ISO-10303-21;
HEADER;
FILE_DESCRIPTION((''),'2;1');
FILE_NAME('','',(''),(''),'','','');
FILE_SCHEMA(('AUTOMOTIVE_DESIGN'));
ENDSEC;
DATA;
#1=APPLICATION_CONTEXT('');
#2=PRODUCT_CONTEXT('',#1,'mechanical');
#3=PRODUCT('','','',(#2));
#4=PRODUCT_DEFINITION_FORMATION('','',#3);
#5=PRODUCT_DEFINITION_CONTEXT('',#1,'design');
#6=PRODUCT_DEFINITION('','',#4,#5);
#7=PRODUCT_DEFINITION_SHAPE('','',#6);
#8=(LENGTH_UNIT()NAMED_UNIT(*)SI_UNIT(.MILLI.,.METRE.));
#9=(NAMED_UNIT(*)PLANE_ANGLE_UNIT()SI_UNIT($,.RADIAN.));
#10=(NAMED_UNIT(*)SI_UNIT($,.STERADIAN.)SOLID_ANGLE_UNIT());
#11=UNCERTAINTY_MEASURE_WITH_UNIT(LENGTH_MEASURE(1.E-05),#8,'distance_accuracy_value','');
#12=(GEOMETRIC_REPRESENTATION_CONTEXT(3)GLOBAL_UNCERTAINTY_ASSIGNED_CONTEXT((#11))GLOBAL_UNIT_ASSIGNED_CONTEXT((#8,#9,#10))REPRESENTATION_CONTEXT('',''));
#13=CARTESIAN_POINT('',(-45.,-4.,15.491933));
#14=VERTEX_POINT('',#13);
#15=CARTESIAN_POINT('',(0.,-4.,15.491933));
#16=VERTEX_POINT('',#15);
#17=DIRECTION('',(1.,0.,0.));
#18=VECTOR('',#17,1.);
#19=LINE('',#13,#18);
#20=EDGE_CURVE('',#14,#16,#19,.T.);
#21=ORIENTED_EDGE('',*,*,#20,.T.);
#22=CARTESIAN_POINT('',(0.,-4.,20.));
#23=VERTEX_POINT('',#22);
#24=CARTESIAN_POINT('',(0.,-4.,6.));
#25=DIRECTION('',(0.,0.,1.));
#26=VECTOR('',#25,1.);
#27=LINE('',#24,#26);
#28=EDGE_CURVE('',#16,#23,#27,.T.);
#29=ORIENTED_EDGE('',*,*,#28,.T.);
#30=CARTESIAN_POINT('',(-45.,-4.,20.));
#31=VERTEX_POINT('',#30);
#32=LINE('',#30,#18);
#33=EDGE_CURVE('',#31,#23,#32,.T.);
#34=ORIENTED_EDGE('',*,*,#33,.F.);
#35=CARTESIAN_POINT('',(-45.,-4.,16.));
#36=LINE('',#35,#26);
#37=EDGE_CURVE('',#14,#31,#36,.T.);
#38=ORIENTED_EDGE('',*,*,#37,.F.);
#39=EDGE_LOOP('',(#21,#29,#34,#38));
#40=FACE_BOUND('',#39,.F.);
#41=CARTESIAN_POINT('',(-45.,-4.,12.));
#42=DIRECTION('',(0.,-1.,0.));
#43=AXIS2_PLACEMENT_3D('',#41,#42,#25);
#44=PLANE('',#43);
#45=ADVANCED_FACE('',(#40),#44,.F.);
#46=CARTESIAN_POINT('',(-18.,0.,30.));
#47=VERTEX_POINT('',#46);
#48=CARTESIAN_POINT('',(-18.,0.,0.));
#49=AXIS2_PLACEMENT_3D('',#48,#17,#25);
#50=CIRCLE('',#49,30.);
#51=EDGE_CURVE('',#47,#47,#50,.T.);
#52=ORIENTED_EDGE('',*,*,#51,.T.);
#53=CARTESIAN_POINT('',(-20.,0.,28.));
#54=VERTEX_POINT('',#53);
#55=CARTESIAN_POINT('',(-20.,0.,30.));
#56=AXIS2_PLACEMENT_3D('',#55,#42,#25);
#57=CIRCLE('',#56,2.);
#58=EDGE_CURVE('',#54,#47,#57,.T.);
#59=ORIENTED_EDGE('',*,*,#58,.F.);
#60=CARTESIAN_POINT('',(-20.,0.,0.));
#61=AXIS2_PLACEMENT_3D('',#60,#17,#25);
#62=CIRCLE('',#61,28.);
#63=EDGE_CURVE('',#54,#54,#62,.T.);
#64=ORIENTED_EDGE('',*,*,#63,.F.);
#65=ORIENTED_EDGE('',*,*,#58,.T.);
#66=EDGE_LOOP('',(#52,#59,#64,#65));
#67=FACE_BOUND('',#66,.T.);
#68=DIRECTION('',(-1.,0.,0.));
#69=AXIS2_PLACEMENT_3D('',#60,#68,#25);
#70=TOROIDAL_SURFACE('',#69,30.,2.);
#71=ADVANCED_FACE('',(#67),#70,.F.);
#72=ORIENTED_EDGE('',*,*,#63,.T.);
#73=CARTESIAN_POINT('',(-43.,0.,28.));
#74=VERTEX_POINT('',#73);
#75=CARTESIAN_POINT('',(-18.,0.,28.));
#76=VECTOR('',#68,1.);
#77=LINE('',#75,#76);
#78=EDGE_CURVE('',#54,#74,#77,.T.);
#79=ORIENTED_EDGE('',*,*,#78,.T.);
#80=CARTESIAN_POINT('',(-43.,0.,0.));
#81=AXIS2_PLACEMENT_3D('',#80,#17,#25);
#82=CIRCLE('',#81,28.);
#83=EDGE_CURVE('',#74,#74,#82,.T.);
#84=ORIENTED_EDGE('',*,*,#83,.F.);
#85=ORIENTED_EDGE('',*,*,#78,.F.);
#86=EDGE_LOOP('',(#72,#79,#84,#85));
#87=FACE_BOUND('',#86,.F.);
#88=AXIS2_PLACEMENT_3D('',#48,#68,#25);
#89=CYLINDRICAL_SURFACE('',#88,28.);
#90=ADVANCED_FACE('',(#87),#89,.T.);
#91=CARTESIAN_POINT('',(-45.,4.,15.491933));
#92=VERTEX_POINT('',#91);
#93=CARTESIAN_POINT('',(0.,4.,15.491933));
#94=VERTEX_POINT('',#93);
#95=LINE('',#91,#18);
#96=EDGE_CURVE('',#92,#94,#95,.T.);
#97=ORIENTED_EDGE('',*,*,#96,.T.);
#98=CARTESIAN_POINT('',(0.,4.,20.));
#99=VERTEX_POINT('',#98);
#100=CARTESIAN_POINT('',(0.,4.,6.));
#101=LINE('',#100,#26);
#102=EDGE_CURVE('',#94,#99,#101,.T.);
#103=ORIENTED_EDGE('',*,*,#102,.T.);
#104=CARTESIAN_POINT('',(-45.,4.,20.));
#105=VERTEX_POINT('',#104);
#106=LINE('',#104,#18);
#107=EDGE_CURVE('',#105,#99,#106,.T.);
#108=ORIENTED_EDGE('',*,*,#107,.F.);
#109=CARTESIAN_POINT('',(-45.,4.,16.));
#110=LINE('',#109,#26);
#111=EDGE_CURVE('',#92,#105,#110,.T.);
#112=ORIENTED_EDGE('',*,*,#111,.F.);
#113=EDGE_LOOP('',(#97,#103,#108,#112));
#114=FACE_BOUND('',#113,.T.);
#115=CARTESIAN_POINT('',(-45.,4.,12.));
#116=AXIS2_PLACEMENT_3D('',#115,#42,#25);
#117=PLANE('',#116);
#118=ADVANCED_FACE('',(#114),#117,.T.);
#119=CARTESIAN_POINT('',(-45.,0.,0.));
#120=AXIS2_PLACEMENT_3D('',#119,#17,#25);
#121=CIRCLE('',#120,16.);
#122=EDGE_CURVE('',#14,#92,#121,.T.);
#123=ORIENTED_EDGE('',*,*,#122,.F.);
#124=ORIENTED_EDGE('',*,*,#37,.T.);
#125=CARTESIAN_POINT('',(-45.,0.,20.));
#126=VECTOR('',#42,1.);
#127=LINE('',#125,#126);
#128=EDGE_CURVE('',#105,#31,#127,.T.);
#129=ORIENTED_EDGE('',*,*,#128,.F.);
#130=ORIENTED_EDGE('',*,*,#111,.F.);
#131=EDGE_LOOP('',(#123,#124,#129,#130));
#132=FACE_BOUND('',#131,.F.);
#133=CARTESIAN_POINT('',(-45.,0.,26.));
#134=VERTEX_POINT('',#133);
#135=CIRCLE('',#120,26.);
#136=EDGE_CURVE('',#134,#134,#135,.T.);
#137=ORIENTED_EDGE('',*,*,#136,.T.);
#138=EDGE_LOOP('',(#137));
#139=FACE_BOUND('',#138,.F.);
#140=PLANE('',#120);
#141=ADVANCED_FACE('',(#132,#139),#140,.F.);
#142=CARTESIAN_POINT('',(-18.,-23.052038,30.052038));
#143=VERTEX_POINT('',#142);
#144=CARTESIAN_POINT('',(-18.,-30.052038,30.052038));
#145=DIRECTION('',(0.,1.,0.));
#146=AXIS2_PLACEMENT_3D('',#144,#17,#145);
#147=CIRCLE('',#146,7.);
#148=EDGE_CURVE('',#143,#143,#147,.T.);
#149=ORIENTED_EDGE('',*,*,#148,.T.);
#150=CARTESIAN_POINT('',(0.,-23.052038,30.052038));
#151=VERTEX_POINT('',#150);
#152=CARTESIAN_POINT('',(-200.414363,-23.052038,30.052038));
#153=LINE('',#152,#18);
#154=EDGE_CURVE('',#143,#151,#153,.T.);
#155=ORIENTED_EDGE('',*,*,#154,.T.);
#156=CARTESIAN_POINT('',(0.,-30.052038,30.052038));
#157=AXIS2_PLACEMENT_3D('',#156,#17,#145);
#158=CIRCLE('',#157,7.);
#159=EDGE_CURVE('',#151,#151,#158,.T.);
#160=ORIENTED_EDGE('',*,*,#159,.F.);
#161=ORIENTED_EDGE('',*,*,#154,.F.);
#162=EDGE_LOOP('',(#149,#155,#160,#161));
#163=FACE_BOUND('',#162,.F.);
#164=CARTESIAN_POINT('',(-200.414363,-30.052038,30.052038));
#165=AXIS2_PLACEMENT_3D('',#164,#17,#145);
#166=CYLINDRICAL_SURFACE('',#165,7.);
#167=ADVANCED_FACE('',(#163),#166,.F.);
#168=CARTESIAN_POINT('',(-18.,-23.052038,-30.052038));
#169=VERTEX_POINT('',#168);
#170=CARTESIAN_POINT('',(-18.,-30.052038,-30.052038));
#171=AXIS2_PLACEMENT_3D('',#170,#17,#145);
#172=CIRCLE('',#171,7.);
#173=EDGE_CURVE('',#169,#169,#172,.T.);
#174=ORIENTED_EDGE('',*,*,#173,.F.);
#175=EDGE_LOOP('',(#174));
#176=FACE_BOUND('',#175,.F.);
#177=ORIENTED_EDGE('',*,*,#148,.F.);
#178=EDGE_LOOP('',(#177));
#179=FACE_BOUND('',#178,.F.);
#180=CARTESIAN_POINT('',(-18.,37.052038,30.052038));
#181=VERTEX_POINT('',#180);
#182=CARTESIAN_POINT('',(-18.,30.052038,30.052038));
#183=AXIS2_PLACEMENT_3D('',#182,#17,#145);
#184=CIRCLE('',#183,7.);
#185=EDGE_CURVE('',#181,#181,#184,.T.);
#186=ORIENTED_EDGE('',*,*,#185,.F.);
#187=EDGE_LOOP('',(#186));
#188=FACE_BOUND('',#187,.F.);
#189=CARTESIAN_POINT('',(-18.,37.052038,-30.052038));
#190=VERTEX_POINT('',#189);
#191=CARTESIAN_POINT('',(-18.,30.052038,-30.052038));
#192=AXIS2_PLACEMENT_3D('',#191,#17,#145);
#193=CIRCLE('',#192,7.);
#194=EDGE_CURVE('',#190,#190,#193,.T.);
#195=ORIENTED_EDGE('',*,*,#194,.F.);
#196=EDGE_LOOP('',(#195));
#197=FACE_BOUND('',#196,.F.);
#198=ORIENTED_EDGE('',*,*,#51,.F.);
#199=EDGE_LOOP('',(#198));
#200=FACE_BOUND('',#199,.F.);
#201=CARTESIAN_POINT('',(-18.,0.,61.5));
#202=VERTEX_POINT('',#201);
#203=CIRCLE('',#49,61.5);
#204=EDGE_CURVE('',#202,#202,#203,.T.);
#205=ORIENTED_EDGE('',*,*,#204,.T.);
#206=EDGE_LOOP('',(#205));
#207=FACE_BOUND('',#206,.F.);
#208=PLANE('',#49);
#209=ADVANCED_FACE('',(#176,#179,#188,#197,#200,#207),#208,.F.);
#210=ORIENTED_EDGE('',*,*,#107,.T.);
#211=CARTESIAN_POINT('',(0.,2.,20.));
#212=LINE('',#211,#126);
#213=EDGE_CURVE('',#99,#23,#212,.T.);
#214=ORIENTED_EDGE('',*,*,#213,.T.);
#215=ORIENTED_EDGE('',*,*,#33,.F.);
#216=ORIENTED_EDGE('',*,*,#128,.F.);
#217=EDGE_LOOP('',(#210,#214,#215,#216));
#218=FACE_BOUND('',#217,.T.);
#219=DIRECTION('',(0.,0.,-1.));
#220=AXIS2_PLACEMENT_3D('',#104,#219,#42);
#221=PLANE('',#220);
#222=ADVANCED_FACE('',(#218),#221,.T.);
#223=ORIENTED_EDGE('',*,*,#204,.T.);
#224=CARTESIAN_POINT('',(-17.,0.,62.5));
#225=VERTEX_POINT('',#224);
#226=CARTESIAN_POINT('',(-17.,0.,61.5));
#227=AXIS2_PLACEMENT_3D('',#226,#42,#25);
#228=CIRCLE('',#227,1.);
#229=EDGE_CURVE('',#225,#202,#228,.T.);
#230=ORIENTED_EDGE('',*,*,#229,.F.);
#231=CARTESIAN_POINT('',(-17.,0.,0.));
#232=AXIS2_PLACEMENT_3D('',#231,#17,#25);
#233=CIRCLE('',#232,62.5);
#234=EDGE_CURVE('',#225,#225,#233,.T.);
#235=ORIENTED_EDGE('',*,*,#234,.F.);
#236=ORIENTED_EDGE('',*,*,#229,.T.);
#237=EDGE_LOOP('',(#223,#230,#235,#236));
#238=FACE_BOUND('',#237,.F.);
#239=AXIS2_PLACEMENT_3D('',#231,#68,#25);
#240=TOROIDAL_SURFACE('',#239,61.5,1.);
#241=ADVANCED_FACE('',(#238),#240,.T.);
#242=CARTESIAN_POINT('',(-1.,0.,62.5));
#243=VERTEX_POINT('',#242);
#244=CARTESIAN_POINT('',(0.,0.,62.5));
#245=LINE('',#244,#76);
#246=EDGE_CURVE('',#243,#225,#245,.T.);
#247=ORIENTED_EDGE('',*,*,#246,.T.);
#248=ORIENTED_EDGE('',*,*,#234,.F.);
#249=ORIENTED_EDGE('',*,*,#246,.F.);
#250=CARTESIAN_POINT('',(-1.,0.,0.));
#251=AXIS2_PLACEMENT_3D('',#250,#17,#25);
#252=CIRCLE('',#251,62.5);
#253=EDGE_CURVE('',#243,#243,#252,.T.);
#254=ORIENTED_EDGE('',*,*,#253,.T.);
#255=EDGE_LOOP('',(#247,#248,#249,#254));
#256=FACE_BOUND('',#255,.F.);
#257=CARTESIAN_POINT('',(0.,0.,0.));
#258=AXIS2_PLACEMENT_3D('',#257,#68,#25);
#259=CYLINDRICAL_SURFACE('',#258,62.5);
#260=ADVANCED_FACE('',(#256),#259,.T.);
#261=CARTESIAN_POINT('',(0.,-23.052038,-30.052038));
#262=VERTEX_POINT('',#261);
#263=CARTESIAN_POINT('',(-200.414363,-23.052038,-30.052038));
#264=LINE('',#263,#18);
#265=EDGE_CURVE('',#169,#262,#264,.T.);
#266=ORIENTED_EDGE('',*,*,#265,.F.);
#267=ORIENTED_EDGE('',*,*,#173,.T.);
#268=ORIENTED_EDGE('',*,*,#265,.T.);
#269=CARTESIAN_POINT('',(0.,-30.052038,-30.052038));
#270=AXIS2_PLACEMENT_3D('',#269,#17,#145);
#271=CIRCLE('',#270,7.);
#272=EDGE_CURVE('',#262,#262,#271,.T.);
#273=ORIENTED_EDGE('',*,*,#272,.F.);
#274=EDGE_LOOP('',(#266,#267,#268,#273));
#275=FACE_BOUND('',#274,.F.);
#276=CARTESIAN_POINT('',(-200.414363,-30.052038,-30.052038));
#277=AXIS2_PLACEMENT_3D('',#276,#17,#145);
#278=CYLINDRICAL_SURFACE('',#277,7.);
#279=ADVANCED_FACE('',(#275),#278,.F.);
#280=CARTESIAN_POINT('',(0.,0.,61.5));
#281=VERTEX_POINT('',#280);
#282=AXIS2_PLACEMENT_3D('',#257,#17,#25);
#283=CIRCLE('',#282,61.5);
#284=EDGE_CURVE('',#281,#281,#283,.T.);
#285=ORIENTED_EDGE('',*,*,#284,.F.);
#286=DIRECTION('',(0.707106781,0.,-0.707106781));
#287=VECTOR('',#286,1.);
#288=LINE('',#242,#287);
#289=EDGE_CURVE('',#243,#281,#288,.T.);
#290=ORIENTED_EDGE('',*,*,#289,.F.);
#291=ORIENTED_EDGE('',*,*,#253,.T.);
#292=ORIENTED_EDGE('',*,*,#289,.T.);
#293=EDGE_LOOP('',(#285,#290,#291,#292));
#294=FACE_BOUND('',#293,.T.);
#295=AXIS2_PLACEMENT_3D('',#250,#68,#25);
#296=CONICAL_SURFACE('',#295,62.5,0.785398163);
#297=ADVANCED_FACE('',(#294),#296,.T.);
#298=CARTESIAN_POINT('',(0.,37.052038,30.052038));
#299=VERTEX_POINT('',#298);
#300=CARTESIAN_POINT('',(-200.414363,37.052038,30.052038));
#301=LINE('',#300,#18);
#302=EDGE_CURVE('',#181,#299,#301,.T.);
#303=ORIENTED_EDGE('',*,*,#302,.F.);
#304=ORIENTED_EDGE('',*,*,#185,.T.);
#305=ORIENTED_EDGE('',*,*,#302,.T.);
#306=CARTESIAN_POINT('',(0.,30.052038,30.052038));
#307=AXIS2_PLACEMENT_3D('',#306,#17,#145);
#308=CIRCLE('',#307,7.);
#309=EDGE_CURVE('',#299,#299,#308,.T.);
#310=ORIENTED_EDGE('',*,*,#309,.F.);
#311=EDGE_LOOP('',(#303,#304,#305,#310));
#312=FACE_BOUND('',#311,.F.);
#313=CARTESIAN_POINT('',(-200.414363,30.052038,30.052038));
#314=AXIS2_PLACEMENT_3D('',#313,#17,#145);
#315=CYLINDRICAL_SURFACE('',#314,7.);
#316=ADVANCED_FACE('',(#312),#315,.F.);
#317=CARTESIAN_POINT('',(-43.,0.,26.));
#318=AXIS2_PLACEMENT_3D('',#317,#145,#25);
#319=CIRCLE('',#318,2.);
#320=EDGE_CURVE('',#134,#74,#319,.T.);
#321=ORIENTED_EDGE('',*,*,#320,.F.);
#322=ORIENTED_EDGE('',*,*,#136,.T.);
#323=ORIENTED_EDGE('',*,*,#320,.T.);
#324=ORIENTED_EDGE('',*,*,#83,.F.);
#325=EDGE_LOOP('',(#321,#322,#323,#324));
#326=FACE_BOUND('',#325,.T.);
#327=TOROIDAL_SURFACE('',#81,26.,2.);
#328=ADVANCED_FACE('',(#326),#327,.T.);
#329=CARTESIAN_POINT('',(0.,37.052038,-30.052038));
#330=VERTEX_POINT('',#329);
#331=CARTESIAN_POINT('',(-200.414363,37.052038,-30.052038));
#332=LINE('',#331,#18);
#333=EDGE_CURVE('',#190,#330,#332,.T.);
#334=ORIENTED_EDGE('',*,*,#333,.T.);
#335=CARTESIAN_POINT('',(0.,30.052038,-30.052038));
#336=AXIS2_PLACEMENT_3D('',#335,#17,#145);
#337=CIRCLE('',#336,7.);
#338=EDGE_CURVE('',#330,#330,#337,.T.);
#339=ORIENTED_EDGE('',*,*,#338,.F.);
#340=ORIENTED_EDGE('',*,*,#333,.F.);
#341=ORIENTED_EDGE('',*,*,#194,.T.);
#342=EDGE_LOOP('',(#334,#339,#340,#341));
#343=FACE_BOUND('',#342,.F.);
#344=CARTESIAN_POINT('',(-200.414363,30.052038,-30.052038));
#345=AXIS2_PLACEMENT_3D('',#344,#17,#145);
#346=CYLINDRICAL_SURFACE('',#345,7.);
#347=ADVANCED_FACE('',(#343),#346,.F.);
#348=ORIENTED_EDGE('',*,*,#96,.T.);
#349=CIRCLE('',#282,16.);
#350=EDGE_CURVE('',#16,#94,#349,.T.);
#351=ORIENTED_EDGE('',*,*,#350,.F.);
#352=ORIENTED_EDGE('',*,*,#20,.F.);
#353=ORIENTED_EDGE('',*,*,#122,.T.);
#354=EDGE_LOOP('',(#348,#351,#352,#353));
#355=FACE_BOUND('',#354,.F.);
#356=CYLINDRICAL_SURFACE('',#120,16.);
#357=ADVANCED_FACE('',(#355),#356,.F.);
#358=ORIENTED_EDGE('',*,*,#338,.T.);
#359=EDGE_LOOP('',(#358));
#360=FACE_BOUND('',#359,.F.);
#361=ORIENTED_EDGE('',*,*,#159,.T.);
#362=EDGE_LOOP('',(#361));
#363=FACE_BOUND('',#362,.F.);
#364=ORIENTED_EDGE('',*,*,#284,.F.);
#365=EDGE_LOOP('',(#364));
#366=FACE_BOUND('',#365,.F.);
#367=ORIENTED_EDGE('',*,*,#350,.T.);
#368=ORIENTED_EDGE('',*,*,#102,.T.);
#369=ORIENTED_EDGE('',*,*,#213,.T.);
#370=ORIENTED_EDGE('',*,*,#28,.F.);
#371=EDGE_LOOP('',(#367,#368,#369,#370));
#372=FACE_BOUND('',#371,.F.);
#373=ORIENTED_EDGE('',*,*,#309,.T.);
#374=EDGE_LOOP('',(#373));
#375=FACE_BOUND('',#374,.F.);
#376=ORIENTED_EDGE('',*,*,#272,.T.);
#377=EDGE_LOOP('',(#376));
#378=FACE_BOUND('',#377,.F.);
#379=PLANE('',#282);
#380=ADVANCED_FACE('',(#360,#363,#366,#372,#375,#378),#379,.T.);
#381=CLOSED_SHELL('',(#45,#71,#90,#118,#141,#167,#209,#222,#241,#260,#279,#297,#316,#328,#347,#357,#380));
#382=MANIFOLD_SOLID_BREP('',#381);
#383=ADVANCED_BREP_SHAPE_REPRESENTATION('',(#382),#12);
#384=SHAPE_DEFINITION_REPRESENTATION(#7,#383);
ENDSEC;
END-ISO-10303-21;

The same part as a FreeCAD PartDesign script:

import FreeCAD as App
import Part
import Sketcher


def edges_at(feature, points):
    """Names of the edges that pass closest to the given points."""
    edges = feature.Shape.Edges
    near = lambda p: min(range(len(edges)), key=lambda i: edges[i].distToShape(Part.Vertex(*p))[0])
    return sorted({f"Edge{near(p) + 1}" for p in points})


def add_polygon(sketch, points):
    """Adds a closed chain of lines whose ends are joined by coincident constraints."""
    first, n = sketch.GeometryCount, len(points)
    for a, b in zip(points, points[1:] + points[:1]):
        sketch.addGeometry(Part.LineSegment(App.Vector(*a, 0), App.Vector(*b, 0)), False)
    for i in range(n):
        sketch.addConstraint(Sketcher.Constraint("Coincident", first + i, 2, first + (i + 1) % n, 1))

doc = App.newDocument("Part")
body = doc.addObject("PartDesign::Body", "Body")

# Sketch on XZ plane
sketch1 = body.newObject("Sketcher::SketchObject", "Sketch")
sketch1.AttachmentSupport = (doc.getObject("XZ_Plane"), [""])
sketch1.MapMode = "FlatFace"
add_polygon(sketch1, [(-45, 16), (0, 16), (0, 62.5), (-18, 62.5), (-18, 28), (-45, 28)])  # lines 0-5
sketch1.addConstraint([
    Sketcher.Constraint("Horizontal", 0),
    Sketcher.Constraint("Vertical", 1),
    Sketcher.Constraint("Horizontal", 2),
    Sketcher.Constraint("Vertical", 3),
    Sketcher.Constraint("Horizontal", 4),
    Sketcher.Constraint("Vertical", 5),
    Sketcher.Constraint("PointOnObject", 0, 2, -2),
    Sketcher.Constraint("DistanceX", 0, 1, 0, 2, 45.0),
    Sketcher.Constraint("DistanceX", 2, 2, 2, 1, 18.0),
    Sketcher.Constraint("DistanceY", 5, 2, 5, 1, 12.0),
    Sketcher.Constraint("DistanceY", 1, 1, 1, 2, 46.5),
    Sketcher.Constraint("DistanceY", -1, 1, 0, 2, 16.0),
])
revolution = body.newObject("PartDesign::Revolution", "Revolution")
revolution.Profile = sketch1
revolution.ReferenceAxis = (sketch1, ["H_Axis"])
revolution.Angle = 360

# Sketch on YZ plane
sketch2 = body.newObject("Sketcher::SketchObject", "Sketch001")
sketch2.AttachmentSupport = (doc.getObject("YZ_Plane"), [""])
sketch2.MapMode = "FlatFace"
sketch2.AttachmentOffset = App.Placement(App.Vector(0, 0, -45), App.Rotation())
add_polygon(sketch2, [(4, 20), (4, 12), (-4, 12), (-4, 20)])  # lines 0-3
sketch2.addConstraint([
    Sketcher.Constraint("Vertical", 0),
    Sketcher.Constraint("Horizontal", 1),
    Sketcher.Constraint("Vertical", 2),
    Sketcher.Constraint("Horizontal", 3),
    Sketcher.Constraint("Equal", 3, 0),
    Sketcher.Constraint("DistanceX", 1, 2, 1, 1, 8.0),
    Sketcher.Constraint("DistanceX", -1, 1, 0, 2, 4.0),
    Sketcher.Constraint("DistanceY", -1, 1, 0, 2, 12.0),
])
pocket1 = body.newObject("PartDesign::Pocket", "Pocket")
pocket1.Profile = sketch2
pocket1.Type = "ThroughAll"
pocket1.Reversed = True

# Sketch on YZ plane
sketch3 = body.newObject("Sketcher::SketchObject", "Sketch002")
sketch3.AttachmentSupport = (doc.getObject("YZ_Plane"), [""])
sketch3.MapMode = "FlatFace"
sketch3.AttachmentOffset = App.Placement(App.Vector(0, 0, -18), App.Rotation())
sketch3.addGeometry([
    Part.Circle(App.Vector(30.052038, 30.052038, 0), App.Vector(0, 0, 1), 7),
    Part.Circle(App.Vector(30.052038, -30.052038, 0), App.Vector(0, 0, 1), 7),
    Part.Circle(App.Vector(-30.052038, -30.052038, 0), App.Vector(0, 0, 1), 7),
    Part.Circle(App.Vector(-30.052038, 30.052038, 0), App.Vector(0, 0, 1), 7),
], False)
sketch3.addConstraint([
    Sketcher.Constraint("Equal", 0, 1),
    Sketcher.Constraint("Equal", 1, 2),
    Sketcher.Constraint("Equal", 2, 3),
    Sketcher.Constraint("Symmetric", 0, 3, 2, 3, -1, 1),
    Sketcher.Constraint("Symmetric", 1, 3, 3, 3, -1, 1),
    Sketcher.Constraint("Symmetric", 1, 3, 2, 3, -2),
    Sketcher.Constraint("Diameter", 0, 14.0),
    Sketcher.Constraint("DistanceX", -1, 1, 0, 3, 30.052038),
    Sketcher.Constraint("DistanceY", -1, 1, 0, 3, 30.052038),
])
doc.recompute()
hole = body.newObject("PartDesign::Hole", "Hole")
hole.Profile = sketch3
hole.ThreadType = "None"
hole.Diameter = 14
hole.DepthType = "ThroughAll"
hole.Reversed = True
doc.recompute()

fillet = body.newObject("PartDesign::Fillet", "Fillet")
fillet.Base = (hole, edges_at(hole, [(-45, 0, -28), (-18, 0, -28)]))
fillet.Radius = 2
doc.recompute()

fillet2 = body.newObject("PartDesign::Fillet", "Fillet001")
fillet2.Base = (fillet, edges_at(fillet, [(-18, 0, -62.5)]))
fillet2.Radius = 1
doc.recompute()

chamfer = body.newObject("PartDesign::Chamfer", "Chamfer")
chamfer.Base = (fillet2, edges_at(fillet2, [(0, 0, -62.5)]))
chamfer.Size = 1

doc.recompute()
